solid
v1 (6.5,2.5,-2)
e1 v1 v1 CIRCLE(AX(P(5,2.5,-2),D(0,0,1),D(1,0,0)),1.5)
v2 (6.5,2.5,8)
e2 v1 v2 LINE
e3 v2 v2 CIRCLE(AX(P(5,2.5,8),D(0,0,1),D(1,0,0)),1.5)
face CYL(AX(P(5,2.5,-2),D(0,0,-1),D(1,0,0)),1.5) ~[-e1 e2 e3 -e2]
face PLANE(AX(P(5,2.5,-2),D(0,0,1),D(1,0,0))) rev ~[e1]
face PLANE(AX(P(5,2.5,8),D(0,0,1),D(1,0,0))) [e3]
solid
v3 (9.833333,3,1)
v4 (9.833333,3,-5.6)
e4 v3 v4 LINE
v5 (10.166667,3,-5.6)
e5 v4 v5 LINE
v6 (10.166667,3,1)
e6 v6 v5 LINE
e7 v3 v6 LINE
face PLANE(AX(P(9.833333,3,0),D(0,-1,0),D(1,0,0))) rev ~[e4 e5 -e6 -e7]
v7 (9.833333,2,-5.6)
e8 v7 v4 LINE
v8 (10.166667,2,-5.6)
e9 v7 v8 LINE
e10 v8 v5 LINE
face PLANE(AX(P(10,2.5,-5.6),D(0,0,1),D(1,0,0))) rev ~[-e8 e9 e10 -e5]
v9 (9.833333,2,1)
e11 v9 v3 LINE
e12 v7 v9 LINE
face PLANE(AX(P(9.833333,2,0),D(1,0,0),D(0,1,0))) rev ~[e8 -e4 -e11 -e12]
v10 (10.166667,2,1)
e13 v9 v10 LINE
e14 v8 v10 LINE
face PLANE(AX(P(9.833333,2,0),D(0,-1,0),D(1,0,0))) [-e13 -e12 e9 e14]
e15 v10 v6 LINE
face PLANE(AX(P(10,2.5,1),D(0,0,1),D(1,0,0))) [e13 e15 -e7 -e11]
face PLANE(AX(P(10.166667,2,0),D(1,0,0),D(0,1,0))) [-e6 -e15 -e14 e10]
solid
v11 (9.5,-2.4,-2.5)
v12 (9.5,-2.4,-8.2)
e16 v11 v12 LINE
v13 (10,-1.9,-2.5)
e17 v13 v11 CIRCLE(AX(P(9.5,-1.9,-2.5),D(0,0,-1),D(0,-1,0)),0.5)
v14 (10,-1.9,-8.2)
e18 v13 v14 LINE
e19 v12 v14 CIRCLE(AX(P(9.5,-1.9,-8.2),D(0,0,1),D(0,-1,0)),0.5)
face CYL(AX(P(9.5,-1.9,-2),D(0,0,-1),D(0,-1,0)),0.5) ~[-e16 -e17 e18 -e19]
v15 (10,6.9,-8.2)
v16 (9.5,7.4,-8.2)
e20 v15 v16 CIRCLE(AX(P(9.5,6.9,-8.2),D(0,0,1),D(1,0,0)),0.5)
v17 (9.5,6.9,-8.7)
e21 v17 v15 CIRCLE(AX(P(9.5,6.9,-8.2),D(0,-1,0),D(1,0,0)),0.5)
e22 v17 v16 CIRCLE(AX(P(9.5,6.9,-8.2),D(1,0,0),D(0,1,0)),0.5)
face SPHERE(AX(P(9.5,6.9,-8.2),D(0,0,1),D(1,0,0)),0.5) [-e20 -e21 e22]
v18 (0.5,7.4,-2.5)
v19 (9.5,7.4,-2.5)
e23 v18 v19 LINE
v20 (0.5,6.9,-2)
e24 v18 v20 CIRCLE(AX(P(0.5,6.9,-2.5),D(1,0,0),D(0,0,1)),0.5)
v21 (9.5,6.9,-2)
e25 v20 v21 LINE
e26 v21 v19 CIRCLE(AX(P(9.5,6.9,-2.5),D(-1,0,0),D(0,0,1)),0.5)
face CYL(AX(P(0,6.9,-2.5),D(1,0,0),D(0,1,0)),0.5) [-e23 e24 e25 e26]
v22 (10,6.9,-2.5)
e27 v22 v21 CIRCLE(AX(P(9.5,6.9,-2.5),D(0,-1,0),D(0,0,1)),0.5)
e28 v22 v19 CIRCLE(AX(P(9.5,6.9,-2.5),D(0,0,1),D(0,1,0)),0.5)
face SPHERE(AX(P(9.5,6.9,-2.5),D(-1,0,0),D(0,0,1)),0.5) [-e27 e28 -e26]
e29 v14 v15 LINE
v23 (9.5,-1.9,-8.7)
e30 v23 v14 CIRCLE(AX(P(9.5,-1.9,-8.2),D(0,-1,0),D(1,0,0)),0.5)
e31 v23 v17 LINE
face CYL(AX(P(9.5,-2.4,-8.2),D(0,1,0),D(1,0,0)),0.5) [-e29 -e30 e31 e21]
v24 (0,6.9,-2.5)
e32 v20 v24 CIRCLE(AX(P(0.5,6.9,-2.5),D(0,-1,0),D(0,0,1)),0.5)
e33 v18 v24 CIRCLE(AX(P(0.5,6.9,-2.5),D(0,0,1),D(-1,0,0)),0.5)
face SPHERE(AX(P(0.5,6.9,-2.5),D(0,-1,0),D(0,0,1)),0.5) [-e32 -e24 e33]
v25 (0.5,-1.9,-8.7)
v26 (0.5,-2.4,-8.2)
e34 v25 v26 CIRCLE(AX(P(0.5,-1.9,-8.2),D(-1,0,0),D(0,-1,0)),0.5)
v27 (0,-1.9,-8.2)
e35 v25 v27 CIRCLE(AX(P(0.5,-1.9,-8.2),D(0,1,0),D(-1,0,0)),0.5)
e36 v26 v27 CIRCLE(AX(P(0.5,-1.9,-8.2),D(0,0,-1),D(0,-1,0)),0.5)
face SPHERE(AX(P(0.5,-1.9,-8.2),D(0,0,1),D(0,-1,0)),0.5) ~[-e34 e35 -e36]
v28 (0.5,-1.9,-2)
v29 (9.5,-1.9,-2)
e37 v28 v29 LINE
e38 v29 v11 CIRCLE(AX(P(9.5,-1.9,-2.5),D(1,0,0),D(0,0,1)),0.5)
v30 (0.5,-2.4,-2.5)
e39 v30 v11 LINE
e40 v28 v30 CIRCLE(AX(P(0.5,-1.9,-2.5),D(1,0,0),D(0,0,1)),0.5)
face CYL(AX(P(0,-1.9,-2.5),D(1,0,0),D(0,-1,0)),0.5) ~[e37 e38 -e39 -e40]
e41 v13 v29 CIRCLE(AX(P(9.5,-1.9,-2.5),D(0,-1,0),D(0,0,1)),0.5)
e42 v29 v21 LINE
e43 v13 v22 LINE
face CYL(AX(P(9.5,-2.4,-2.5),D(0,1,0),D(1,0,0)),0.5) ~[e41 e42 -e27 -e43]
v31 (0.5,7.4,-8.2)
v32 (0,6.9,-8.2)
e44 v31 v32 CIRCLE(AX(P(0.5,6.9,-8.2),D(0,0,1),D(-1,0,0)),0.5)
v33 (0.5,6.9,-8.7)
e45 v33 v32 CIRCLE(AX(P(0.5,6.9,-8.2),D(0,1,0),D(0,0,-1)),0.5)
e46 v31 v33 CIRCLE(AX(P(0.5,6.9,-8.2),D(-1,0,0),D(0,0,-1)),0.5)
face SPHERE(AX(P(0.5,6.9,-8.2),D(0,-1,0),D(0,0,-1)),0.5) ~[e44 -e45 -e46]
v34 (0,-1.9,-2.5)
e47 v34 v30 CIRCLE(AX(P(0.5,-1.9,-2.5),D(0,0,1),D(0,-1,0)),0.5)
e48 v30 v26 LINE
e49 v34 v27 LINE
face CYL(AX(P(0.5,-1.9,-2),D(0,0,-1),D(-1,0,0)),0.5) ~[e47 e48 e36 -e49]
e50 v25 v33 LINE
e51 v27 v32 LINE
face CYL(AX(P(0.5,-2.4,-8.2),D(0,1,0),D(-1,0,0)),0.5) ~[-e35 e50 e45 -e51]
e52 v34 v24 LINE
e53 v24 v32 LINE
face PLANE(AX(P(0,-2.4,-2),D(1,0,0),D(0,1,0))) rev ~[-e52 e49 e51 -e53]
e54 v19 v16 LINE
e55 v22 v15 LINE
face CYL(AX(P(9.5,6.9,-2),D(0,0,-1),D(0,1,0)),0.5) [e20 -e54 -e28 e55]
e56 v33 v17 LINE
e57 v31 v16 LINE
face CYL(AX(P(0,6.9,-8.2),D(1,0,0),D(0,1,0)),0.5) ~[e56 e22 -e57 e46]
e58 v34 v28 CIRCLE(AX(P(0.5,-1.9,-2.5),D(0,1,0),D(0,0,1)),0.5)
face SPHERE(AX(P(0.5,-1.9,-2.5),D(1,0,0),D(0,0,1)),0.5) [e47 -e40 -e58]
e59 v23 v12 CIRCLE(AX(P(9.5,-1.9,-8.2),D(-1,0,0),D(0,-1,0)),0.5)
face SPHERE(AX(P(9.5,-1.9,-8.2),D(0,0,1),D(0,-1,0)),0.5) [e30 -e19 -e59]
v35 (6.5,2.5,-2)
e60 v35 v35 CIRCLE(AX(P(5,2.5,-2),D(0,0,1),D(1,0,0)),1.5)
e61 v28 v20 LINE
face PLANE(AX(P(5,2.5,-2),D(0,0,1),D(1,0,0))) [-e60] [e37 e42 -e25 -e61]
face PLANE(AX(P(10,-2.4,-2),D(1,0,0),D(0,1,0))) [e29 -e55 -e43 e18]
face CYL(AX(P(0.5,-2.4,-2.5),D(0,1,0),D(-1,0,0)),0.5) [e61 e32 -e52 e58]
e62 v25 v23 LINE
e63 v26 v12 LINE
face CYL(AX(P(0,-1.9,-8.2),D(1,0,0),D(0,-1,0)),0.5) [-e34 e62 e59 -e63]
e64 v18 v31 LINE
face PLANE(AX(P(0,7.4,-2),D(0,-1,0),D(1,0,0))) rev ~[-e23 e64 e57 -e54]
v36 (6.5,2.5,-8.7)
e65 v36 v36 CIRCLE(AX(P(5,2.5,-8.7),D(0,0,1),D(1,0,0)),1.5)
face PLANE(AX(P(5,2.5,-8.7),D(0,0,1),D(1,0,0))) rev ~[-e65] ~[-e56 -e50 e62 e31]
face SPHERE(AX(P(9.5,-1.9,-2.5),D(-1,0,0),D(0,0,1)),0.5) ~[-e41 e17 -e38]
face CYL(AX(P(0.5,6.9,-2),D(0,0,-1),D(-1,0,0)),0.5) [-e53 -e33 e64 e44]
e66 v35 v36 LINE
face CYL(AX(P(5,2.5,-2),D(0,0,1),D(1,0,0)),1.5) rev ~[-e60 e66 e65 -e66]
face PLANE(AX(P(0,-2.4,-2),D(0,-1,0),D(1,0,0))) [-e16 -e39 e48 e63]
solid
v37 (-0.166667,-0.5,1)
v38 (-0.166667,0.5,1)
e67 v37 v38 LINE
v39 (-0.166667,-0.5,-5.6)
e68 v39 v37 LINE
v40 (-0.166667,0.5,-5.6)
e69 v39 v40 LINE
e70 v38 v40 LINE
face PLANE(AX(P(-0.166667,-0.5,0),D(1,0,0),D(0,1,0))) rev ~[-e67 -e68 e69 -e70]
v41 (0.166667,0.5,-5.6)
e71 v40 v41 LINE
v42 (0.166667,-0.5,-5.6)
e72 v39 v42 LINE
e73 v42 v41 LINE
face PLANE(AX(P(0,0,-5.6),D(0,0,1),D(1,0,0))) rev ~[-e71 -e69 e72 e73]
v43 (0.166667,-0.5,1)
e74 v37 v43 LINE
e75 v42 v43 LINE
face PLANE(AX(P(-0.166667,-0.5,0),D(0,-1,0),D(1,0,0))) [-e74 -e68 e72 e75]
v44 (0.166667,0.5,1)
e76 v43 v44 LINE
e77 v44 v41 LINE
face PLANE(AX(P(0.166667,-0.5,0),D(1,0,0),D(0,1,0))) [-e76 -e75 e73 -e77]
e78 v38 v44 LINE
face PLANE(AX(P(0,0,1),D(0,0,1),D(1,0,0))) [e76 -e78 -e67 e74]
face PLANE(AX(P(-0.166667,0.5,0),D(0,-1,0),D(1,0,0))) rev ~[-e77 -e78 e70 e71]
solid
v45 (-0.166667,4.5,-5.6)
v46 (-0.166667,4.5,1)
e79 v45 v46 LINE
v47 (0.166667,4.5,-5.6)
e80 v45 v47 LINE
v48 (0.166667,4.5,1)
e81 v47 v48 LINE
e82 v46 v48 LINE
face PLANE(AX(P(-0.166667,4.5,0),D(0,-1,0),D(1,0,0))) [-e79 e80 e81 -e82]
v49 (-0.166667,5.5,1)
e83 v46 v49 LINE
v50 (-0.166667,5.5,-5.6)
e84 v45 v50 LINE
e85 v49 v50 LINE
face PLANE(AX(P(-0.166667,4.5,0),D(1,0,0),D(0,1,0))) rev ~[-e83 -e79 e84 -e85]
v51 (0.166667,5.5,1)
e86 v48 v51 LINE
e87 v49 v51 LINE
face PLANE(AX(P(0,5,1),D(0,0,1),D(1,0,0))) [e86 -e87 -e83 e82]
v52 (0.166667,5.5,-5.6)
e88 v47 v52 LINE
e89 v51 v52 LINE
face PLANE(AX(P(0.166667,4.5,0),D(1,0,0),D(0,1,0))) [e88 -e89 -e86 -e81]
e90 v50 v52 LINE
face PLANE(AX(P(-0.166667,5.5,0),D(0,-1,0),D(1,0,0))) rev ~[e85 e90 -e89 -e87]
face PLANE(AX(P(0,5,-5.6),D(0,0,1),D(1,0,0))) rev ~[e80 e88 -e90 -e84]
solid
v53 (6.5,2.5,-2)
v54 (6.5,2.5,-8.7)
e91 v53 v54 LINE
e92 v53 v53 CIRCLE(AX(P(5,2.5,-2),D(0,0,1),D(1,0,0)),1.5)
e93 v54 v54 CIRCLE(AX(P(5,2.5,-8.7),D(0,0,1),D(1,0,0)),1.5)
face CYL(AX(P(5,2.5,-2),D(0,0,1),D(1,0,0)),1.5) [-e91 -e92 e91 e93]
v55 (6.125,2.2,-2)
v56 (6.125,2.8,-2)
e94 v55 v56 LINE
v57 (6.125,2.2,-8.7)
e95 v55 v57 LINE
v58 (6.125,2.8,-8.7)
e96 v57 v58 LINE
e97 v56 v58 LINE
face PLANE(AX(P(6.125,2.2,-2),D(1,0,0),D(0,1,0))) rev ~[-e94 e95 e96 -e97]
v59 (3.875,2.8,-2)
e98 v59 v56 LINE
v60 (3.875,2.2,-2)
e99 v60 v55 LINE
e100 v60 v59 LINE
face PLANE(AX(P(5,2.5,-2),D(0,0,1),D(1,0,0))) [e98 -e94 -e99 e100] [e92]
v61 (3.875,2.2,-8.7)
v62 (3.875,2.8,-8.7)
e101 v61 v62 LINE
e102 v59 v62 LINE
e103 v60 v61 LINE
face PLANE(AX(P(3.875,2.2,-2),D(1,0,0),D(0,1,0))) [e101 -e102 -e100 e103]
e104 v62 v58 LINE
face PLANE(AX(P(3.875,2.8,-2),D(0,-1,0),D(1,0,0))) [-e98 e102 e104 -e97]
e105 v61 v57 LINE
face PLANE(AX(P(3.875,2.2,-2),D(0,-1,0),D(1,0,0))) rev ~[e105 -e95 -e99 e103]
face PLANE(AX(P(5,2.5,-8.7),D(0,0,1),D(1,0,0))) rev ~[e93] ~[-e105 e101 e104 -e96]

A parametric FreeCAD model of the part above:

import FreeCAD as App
import Part
import Sketcher


def edges_at(feature, points):
    """Names of the edges that pass closest to the given points."""
    edges = feature.Shape.Edges
    near = lambda p: min(range(len(edges)), key=lambda i: edges[i].distToShape(Part.Vertex(*p))[0])
    return sorted({f"Edge{near(p) + 1}" for p in points})

doc = App.newDocument("Part")
params = doc.addObject("Spreadsheet::Sheet", "Params")
for row, (alias, value) in enumerate([
    ("sketch1_height", "1 mm"),
    ("pad1_length", "1 mm"),
    ("pad1_length2", "5.6 mm"),
    ("sketch2_diameter", "3 mm"),
    ("sketch2_height", "0.6 mm"),
    ("sketch2_width", "2.25 mm"),
    ("pad2_length", "6.7 mm"),
    ("sketch3_diameter", "3 mm"),
    ("pad3_length", "10 mm"),
    ("sketch4_diameter", "3 mm"),
    ("sketch4_width", "10 mm"),
    ("sketch4_height", "9.8 mm"),
    ("pad4_length", "6.7 mm"),
    ("fillet_radius", "0.5 mm"),
], start=1):
    params.set(f"A{row}", alias)
    params.set(f"B{row}", "=" + value)
    params.setAlias(f"B{row}", alias)

body = doc.addObject("PartDesign::Body", "Body")
body.AllowCompound = True

# Sketch on XY plane
sketch1 = body.newObject("Sketcher::SketchObject", "Sketch")
sketch1.AttachmentSupport = (doc.getObject("XY_Plane"), [""])
sketch1.MapMode = "FlatFace"
sketch1.addGeometry([
    Part.LineSegment(App.Vector(-0.17, 5.5, 0), App.Vector(-0.17, 4.5, 0)),  # 0
    Part.LineSegment(App.Vector(-0.17, 4.5, 0), App.Vector(0.17, 4.5, 0)),  # 1
    Part.LineSegment(App.Vector(0.17, 4.5, 0), App.Vector(0.17, 5.5, 0)),  # 2
    Part.LineSegment(App.Vector(0.17, 5.5, 0), App.Vector(-0.17, 5.5, 0)),  # 3
    Part.LineSegment(App.Vector(9.83, 3, 0), App.Vector(9.83, 2, 0)),  # 4
    Part.LineSegment(App.Vector(9.83, 2, 0), App.Vector(10.17, 2, 0)),  # 5
    Part.LineSegment(App.Vector(10.17, 2, 0), App.Vector(10.17, 3, 0)),  # 6
    Part.LineSegment(App.Vector(10.17, 3, 0), App.Vector(9.83, 3, 0)),  # 7
    Part.LineSegment(App.Vector(-0.17, 0.5, 0), App.Vector(-0.17, -0.5, 0)),  # 8
    Part.LineSegment(App.Vector(-0.17, -0.5, 0), App.Vector(0.17, -0.5, 0)),  # 9
    Part.LineSegment(App.Vector(0.17, -0.5, 0), App.Vector(0.17, 0.5, 0)),  # 10
    Part.LineSegment(App.Vector(0.17, 0.5, 0), App.Vector(-0.17, 0.5, 0)),  # 11
], False)
sketch1.addConstraint([
    Sketcher.Constraint("Coincident", 0, 2, 1, 1),
    Sketcher.Constraint("Coincident", 1, 2, 2, 1),
    Sketcher.Constraint("Coincident", 2, 2, 3, 1),
    Sketcher.Constraint("Coincident", 3, 2, 0, 1),
    Sketcher.Constraint("Coincident", 4, 2, 5, 1),
    Sketcher.Constraint("Coincident", 5, 2, 6, 1),
    Sketcher.Constraint("Coincident", 6, 2, 7, 1),
    Sketcher.Constraint("Coincident", 7, 2, 4, 1),
    Sketcher.Constraint("Coincident", 8, 2, 9, 1),
    Sketcher.Constraint("Coincident", 9, 2, 10, 1),
    Sketcher.Constraint("Coincident", 10, 2, 11, 1),
    Sketcher.Constraint("Coincident", 11, 2, 8, 1),
    Sketcher.Constraint("Vertical", 0),
    Sketcher.Constraint("Horizontal", 1),
    Sketcher.Constraint("Vertical", 2),
    Sketcher.Constraint("Horizontal", 3),
    Sketcher.Constraint("Vertical", 4),
    Sketcher.Constraint("Horizontal", 5),
    Sketcher.Constraint("Vertical", 6),
    Sketcher.Constraint("Horizontal", 7),
    Sketcher.Constraint("Vertical", 8),
    Sketcher.Constraint("Horizontal", 9),
    Sketcher.Constraint("Vertical", 10),
    Sketcher.Constraint("Horizontal", 11),
    Sketcher.Constraint("Symmetric", 8, 2, 10, 2, -1, 1),
    Sketcher.Constraint("Vertical", 3, 2, 8, 2),
    Sketcher.Constraint("Vertical", 2, 2, 9, 2),
    Sketcher.Constraint("Equal", 3, 5),
    Sketcher.Constraint("Equal", 2, 4),
    Sketcher.Constraint("Equal", 6, 8),
    Sketcher.Constraint("DistanceY", 0, 2, 0, 1, 1.0),
    Sketcher.Constraint("DistanceY", -1, 1, 4, 2, 2.0),
    Sketcher.Constraint("DistanceX", 0, 2, 4, 2, 10.0),
    Sketcher.Constraint("DistanceY", 8, 2, 0, 2, 5.0),
    Sketcher.Constraint("DistanceX", 1, 1, 1, 2, 0.333334),
])
sketch1.setExpression("Constraints[30]", "Params.sketch1_height")
pad1 = body.newObject("PartDesign::Pad", "Pad")
pad1.Profile = sketch1
pad1.Type = "TwoLengths"
pad1.setExpression("Length", "Params.pad1_length")
pad1.setExpression("Length2", "Params.pad1_length2")
body2 = doc.addObject("PartDesign::Body", "Body001")

# Sketch on XY plane
sketch2 = body2.newObject("Sketcher::SketchObject", "Sketch001")
sketch2.AttachmentSupport = (doc.getObject("XY_Plane001"), [""])
sketch2.MapMode = "FlatFace"
sketch2.AttachmentOffset = App.Placement(App.Vector(0, 0, -2), App.Rotation())
sketch2.addGeometry([
    Part.Circle(App.Vector(5, 2.5, 0), App.Vector(0, 0, 1), 1.5),  # 0
    Part.LineSegment(App.Vector(6.1, 2.2, 0), App.Vector(3.9, 2.2, 0)),  # 1
    Part.LineSegment(App.Vector(3.9, 2.2, 0), App.Vector(3.9, 2.8, 0)),  # 2
    Part.LineSegment(App.Vector(3.9, 2.8, 0), App.Vector(6.1, 2.8, 0)),  # 3
    Part.LineSegment(App.Vector(6.1, 2.8, 0), App.Vector(6.1, 2.2, 0)),  # 4
], False)
sketch2.addConstraint([
    Sketcher.Constraint("Coincident", 1, 2, 2, 1),
    Sketcher.Constraint("Coincident", 2, 2, 3, 1),
    Sketcher.Constraint("Coincident", 3, 2, 4, 1),
    Sketcher.Constraint("Coincident", 4, 2, 1, 1),
    Sketcher.Constraint("Horizontal", 1),
    Sketcher.Constraint("Vertical", 2),
    Sketcher.Constraint("Horizontal", 3),
    Sketcher.Constraint("Vertical", 4),
    Sketcher.Constraint("Diameter", 0, 3.0),
    Sketcher.Constraint("DistanceY", 2, 1, 2, 2, 0.6),
    Sketcher.Constraint("DistanceX", -1, 1, 0, 3, 5.0),
    Sketcher.Constraint("DistanceX", 1, 2, 1, 1, 2.25),
    Sketcher.Constraint("DistanceY", -1, 1, 0, 3, 2.5),
    Sketcher.Constraint("DistanceY", -1, 1, 1, 2, 2.2),
    Sketcher.Constraint("DistanceX", -1, 1, 1, 2, 3.875),
])
sketch2.setExpression("Constraints[8]", "Params.sketch2_diameter")
sketch2.setExpression("Constraints[9]", "Params.sketch2_height")
sketch2.setExpression("Constraints[11]", "Params.sketch2_width")
pad2 = body2.newObject("PartDesign::Pad", "Pad001")
pad2.Profile = sketch2
pad2.setExpression("Length", "Params.pad2_length")
pad2.Reversed = True
body3 = doc.addObject("PartDesign::Body", "Body002")

# Sketch on XY plane
sketch3 = body3.newObject("Sketcher::SketchObject", "Sketch002")
sketch3.AttachmentSupport = (doc.getObject("XY_Plane002"), [""])
sketch3.MapMode = "FlatFace"
sketch3.AttachmentOffset = App.Placement(App.Vector(0, 0, -2), App.Rotation())
sketch3.addGeometry(Part.Circle(App.Vector(5, 2.5, 0), App.Vector(0, 0, 1), 1.5), False)
sketch3.addConstraint([
    Sketcher.Constraint("Diameter", 0, 3.0),
    Sketcher.Constraint("DistanceX", -1, 1, 0, 3, 5.0),
    Sketcher.Constraint("DistanceY", -1, 1, 0, 3, 2.5),
])
sketch3.setExpression("Constraints[0]", "Params.sketch3_diameter")
pad3 = body3.newObject("PartDesign::Pad", "Pad002")
pad3.Profile = sketch3
pad3.setExpression("Length", "Params.pad3_length")
body4 = doc.addObject("PartDesign::Body", "Body003")

# Sketch on XY plane
sketch4 = body4.newObject("Sketcher::SketchObject", "Sketch003")
sketch4.AttachmentSupport = (doc.getObject("XY_Plane003"), [""])
sketch4.MapMode = "FlatFace"
sketch4.AttachmentOffset = App.Placement(App.Vector(0, 0, -2), App.Rotation())
sketch4.addGeometry([
    Part.LineSegment(App.Vector(0, 7.4, 0), App.Vector(0, -2.4, 0)),  # 0
    Part.LineSegment(App.Vector(0, -2.4, 0), App.Vector(10, -2.4, 0)),  # 1
    Part.LineSegment(App.Vector(10, -2.4, 0), App.Vector(10, 7.4, 0)),  # 2
    Part.LineSegment(App.Vector(10, 7.4, 0), App.Vector(0, 7.4, 0)),  # 3
    Part.Circle(App.Vector(5, 2.5, 0), App.Vector(0, 0, 1), 1.5),  # 4
], False)
sketch4.addConstraint([
    Sketcher.Constraint("Coincident", 0, 2, 1, 1),
    Sketcher.Constraint("Coincident", 1, 2, 2, 1),
    Sketcher.Constraint("Coincident", 2, 2, 3, 1),
    Sketcher.Constraint("Coincident", 3, 2, 0, 1),
    Sketcher.Constraint("Vertical", 0),
    Sketcher.Constraint("Horizontal", 1),
    Sketcher.Constraint("Vertical", 2),
    Sketcher.Constraint("Horizontal", 3),
    Sketcher.Constraint("PointOnObject", 0, 2, -2),
    Sketcher.Constraint("Diameter", 4, 3.0),
    Sketcher.Constraint("DistanceX", 1, 1, 1, 2, 10.0),
    Sketcher.Constraint("DistanceY", 0, 2, 0, 1, 9.8),
    Sketcher.Constraint("DistanceX", -1, 1, 4, 3, 5.0),
    Sketcher.Constraint("DistanceY", -1, 1, 4, 3, 2.5),
    Sketcher.Constraint("DistanceY", 0, 2, -1, 1, 2.4),
])
sketch4.setExpression("Constraints[9]", "Params.sketch4_diameter")
sketch4.setExpression("Constraints[10]", "Params.sketch4_width")
sketch4.setExpression("Constraints[11]", "Params.sketch4_height")
pad4 = body4.newObject("PartDesign::Pad", "Pad003")
pad4.Profile = sketch4
pad4.setExpression("Length", "Params.pad4_length")
pad4.Reversed = True
doc.recompute()

fillet = body4.newObject("PartDesign::Fillet", "Fillet")
fillet.Base = (pad4, edges_at(pad4, [
    (5, -2.4, -2),
    (0, 2.5, -2),
    (5, 7.4, -2),
    (10, 2.5, -2),
    (10, 7.4, -5.35),
    (10, -2.4, -5.35),
    (0, -2.4, -5.35),
    (5, -2.4, -8.7),
    (10, 2.5, -8.7),
    (0, 2.5, -8.7),
    (5, 7.4, -8.7),
    (0, 7.4, -5.35),
]))
fillet.setExpression("Radius", "Params.fillet_radius")

doc.recompute()
